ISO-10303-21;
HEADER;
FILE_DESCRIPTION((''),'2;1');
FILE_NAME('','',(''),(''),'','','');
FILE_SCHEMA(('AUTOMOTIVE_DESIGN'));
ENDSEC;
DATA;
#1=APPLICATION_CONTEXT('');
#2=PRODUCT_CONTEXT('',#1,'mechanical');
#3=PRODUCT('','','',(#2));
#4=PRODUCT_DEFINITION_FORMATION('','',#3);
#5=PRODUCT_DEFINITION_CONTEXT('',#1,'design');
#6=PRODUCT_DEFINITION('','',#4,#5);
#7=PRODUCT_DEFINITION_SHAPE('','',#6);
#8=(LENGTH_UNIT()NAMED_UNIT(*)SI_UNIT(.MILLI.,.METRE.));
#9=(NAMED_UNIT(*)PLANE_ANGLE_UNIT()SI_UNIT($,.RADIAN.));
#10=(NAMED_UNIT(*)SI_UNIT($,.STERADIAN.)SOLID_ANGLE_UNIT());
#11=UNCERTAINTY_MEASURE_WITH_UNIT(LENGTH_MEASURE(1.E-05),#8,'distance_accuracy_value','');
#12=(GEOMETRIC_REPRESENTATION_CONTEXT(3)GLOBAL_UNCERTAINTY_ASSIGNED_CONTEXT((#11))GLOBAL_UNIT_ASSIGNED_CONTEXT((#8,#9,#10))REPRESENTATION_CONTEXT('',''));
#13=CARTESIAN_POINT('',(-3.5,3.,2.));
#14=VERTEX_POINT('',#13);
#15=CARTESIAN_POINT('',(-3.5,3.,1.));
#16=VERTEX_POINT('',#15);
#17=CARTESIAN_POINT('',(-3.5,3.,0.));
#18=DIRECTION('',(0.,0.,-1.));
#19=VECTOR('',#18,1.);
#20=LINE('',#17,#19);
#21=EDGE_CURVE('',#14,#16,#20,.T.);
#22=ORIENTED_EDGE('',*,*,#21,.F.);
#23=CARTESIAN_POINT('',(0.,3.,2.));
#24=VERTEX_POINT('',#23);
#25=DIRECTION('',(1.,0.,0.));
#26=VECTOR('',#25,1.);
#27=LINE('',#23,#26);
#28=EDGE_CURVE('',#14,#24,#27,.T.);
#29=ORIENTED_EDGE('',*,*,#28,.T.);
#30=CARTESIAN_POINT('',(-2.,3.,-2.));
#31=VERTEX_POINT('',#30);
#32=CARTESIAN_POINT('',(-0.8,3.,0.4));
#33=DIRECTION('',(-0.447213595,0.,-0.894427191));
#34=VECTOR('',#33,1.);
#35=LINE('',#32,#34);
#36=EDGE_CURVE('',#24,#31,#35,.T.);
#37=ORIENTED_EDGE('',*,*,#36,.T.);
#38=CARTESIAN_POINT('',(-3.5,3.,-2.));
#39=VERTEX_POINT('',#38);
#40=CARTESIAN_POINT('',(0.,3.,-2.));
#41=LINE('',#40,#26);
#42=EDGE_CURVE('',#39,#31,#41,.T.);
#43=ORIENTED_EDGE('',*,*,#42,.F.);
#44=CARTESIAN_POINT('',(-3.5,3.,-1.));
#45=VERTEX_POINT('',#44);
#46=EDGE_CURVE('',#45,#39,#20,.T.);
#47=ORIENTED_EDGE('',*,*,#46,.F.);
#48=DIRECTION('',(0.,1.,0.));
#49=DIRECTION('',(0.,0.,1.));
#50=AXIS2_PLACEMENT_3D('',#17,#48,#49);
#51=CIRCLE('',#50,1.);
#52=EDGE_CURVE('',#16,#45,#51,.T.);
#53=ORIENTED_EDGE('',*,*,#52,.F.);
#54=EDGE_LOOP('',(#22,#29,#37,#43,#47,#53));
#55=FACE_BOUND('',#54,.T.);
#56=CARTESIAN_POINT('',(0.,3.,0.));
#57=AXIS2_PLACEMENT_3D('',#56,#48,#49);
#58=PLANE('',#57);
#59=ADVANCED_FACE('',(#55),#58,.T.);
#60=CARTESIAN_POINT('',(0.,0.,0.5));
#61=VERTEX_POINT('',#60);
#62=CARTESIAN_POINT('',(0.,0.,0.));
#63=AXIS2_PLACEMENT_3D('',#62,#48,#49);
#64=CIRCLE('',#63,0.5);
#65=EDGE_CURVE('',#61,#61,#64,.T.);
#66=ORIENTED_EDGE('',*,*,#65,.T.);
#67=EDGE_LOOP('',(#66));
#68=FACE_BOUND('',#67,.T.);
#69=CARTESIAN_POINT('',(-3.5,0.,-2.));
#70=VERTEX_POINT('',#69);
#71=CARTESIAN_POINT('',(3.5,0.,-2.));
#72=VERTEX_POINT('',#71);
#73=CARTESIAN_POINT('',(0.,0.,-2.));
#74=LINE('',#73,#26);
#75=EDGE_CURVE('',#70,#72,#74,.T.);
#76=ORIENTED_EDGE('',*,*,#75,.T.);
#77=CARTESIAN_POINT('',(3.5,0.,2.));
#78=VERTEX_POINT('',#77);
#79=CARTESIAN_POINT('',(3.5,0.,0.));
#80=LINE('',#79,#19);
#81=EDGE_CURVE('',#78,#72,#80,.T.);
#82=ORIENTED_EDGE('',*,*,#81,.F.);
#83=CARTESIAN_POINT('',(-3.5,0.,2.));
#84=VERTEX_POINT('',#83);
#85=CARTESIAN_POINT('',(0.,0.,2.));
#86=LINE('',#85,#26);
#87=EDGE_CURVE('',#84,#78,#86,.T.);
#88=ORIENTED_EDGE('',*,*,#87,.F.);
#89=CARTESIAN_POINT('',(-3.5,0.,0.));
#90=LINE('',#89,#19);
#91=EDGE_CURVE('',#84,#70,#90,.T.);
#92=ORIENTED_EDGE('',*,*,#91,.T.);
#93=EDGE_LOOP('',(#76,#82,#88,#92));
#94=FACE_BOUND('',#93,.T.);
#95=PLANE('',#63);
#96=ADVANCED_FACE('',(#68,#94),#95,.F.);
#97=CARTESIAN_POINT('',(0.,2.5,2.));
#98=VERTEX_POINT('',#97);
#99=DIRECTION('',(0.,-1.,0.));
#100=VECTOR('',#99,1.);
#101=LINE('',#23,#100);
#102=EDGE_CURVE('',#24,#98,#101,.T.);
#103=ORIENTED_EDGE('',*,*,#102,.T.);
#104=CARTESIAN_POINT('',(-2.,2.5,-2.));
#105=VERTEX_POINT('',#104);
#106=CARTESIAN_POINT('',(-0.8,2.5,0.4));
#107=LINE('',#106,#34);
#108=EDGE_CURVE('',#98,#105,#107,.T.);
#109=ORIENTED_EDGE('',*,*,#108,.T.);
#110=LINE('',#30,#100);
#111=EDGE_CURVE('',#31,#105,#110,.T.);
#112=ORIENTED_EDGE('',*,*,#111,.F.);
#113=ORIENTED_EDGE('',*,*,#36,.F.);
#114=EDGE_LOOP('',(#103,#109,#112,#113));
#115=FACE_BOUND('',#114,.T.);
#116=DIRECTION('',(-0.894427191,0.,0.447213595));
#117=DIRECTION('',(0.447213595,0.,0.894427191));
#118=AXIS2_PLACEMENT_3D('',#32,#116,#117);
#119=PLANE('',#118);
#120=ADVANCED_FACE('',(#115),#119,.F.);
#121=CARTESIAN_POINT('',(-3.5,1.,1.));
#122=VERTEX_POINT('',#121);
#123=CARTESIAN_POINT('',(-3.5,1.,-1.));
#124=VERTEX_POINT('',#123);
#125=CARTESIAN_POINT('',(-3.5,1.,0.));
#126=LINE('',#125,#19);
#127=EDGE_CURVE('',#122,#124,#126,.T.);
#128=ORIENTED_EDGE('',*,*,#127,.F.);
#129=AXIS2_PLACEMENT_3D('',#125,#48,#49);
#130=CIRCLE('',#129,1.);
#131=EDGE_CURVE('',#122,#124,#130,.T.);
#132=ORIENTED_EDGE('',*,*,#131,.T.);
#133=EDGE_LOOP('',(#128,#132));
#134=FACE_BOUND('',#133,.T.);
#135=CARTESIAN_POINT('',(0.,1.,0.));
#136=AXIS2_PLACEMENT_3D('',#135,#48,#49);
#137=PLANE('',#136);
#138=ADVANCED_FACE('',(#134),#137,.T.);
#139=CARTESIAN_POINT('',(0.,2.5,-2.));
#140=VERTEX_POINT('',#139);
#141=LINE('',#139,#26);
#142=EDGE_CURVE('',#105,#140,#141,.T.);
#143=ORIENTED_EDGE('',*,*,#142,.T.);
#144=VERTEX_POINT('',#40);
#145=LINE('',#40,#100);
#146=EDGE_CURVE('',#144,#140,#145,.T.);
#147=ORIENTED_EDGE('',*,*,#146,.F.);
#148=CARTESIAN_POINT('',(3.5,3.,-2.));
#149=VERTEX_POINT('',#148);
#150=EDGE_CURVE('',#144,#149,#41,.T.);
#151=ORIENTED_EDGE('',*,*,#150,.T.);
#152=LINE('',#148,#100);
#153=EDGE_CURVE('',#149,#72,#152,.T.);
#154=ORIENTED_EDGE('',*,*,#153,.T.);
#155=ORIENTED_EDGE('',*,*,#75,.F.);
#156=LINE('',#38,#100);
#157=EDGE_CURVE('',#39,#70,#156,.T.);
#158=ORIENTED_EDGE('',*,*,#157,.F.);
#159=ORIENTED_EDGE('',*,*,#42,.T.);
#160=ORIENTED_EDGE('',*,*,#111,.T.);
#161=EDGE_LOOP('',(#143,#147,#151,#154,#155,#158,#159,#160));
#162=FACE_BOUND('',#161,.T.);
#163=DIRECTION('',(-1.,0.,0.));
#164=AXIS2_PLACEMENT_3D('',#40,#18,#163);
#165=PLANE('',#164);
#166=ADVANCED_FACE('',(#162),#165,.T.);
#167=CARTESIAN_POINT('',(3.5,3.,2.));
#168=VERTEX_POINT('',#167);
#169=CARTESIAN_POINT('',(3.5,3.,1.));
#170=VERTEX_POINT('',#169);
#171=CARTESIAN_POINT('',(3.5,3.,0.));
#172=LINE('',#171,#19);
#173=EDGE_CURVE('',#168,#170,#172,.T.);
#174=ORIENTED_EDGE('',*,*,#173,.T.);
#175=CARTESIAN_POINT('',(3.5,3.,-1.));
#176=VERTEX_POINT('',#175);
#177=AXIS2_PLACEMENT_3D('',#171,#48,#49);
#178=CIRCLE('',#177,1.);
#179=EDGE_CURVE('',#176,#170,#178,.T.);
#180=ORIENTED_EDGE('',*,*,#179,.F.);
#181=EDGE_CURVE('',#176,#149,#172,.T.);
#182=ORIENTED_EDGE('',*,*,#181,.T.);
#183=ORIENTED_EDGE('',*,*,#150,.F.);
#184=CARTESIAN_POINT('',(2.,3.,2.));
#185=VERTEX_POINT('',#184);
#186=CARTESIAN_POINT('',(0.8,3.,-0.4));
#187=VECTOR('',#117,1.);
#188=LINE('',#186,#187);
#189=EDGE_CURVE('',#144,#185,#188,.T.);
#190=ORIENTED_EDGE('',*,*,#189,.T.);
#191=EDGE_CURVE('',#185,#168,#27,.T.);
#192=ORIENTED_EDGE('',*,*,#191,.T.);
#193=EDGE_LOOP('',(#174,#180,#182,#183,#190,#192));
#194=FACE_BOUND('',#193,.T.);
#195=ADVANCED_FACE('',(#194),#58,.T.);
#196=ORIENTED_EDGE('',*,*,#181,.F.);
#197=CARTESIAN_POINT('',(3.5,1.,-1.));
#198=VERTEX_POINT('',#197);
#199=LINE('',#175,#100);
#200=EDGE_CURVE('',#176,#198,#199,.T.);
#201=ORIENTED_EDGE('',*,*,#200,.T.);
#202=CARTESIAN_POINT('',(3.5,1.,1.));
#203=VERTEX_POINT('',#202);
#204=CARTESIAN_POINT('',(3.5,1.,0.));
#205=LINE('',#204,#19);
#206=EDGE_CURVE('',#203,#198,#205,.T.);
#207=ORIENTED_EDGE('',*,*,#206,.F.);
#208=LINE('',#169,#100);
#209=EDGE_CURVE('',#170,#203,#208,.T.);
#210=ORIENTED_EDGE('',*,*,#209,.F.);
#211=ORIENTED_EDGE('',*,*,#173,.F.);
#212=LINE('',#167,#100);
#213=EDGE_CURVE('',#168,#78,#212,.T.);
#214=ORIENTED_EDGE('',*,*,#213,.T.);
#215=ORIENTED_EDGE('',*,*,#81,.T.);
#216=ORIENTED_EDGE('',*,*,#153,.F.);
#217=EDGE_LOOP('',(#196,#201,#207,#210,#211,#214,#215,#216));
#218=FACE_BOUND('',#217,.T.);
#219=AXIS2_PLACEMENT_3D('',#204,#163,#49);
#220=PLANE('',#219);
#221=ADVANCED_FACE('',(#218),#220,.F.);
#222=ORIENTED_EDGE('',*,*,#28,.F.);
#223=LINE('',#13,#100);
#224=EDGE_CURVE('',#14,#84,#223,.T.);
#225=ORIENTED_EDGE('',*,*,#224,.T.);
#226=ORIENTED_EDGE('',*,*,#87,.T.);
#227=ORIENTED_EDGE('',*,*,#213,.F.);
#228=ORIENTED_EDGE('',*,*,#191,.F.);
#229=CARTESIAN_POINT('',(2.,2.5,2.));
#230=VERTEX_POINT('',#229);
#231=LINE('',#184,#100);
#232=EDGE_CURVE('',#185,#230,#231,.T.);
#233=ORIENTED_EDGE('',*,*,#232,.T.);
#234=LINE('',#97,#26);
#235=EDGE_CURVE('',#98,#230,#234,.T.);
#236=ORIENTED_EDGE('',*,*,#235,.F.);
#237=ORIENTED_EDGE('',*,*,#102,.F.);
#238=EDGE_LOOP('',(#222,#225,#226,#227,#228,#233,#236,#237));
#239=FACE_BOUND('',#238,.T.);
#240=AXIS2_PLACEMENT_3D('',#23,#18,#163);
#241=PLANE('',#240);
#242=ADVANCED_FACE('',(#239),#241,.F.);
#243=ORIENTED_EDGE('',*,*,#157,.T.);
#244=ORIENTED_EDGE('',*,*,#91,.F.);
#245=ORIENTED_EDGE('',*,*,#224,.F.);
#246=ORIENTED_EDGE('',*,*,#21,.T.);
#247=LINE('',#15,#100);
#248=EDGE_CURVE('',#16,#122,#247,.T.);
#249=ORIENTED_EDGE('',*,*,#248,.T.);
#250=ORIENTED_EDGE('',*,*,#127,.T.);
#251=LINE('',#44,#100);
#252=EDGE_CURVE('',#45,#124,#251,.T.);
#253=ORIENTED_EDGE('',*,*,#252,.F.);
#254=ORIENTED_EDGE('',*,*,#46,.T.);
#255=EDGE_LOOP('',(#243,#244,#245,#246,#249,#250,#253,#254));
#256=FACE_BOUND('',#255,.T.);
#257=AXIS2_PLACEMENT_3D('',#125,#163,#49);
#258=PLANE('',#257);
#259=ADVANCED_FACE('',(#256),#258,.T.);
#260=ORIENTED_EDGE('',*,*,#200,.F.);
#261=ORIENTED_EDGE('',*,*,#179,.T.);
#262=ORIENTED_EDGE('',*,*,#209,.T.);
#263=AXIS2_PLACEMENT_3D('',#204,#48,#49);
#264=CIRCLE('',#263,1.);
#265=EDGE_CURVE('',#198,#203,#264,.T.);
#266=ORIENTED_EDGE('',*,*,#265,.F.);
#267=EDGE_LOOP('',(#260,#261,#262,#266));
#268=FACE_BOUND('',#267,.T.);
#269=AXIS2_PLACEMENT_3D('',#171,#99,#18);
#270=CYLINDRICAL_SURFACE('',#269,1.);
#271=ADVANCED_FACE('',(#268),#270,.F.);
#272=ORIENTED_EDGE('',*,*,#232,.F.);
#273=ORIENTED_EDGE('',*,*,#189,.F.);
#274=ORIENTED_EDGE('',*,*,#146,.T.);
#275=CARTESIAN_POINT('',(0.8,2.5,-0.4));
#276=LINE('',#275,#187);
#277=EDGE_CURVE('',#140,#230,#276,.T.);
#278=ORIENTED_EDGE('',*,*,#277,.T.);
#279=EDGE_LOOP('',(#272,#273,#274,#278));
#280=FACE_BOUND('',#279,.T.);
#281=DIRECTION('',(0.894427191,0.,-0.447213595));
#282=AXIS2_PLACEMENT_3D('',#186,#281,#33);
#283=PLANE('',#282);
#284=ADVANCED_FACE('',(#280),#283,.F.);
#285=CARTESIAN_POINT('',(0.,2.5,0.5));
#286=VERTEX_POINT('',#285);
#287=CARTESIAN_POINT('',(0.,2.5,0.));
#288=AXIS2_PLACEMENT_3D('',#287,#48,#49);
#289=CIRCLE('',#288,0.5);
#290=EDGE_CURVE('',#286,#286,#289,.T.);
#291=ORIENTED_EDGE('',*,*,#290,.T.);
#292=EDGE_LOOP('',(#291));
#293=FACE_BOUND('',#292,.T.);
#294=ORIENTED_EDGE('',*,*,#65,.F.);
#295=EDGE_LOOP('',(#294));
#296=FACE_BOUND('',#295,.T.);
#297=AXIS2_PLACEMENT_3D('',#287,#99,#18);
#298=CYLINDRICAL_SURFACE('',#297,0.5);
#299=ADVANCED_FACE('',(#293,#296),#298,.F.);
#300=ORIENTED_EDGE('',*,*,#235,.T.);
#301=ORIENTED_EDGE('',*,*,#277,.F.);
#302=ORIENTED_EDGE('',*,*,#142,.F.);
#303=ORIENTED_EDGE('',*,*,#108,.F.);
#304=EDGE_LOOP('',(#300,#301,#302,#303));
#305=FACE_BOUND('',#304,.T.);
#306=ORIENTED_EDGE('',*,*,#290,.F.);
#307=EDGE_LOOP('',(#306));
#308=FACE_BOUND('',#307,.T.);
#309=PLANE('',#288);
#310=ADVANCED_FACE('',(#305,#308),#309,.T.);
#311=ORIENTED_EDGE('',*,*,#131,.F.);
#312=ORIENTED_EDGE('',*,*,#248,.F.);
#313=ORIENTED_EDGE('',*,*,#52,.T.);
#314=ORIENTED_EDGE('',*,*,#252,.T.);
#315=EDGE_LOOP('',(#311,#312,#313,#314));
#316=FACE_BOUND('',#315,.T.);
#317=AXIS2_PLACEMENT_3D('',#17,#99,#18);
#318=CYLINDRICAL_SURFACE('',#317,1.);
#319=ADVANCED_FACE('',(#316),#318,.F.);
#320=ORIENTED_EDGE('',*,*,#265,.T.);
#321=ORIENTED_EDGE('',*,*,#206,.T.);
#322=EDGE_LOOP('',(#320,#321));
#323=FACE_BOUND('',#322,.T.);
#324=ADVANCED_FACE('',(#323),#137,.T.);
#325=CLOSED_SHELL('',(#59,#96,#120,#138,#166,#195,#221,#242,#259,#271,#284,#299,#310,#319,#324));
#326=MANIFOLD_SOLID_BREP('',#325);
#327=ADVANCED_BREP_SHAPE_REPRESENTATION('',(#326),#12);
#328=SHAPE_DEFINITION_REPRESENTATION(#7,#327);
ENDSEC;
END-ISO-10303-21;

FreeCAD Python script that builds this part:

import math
import FreeCAD as App
import Part
import Sketcher

V = App.Vector
Q = App.Units.Quantity

doc = App.newDocument("Part")
body = doc.addObject("PartDesign::Body", "Body")

sketch1 = doc.addObject("Sketcher::SketchObject", "Sketch")
body.addObject(sketch1)
sketch1.AttachmentSupport = (doc.XZ_Plane, [""])
sketch1.MapMode = "FlatFace"
sketch1.addGeometry([
    Part.ArcOfCircle(Part.Circle(V(3.5, 0, 0), V(0, 0, 1), 1), math.radians(90), math.radians(270)),
    Part.LineSegment(V(3.5, 1, 0), V(3.5, -1, 0)),
], False)
sketch1.addConstraint([
    Sketcher.Constraint("Coincident", 0, 1, 1, 1),
    Sketcher.Constraint("Coincident", 1, 2, 0, 2),
    Sketcher.Constraint("Vertical", 1),
    Sketcher.Constraint("PointOnObject", 0, 3, -1),
    Sketcher.Constraint("Radius", 0, Q("1 mm")),
    Sketcher.Constraint("DistanceX", -1, 1, 0, 3, Q("3.5 mm")),
    Sketcher.Constraint("DistanceX", -1, 1, 0, 1, Q("3.5 mm")),
])
pad1 = doc.addObject("PartDesign::Pad", "Pad")
body.addObject(pad1)
pad1.Profile = sketch1
pad1.Length = 1
pad1.Reversed = True
body2 = doc.addObject("PartDesign::Body", "Body001")

sketch2 = doc.addObject("Sketcher::SketchObject", "Sketch001")
body2.addObject(sketch2)
sketch2.AttachmentSupport = (doc.getObject("XZ_Plane001"), [""])
sketch2.MapMode = "FlatFace"
sketch2.addGeometry([
    Part.LineSegment(V(-3.5, -1, 0), V(-3.5, 1, 0)),
    Part.ArcOfCircle(Part.Circle(V(-3.5, 0, 0), V(0, 0, 1), 1), math.radians(0), math.radians(90)),
    Part.ArcOfCircle(Part.Circle(V(-3.5, 0, 0), V(0, 0, 1), 1), math.radians(-90), math.radians(0)),
], False)
sketch2.addConstraint([
    Sketcher.Constraint("Coincident", 0, 2, 1, 2),
    Sketcher.Constraint("Tangent", 1, 1, 2, 2),
    Sketcher.Constraint("Coincident", 2, 1, 0, 1),
    Sketcher.Constraint("Vertical", 0),
    Sketcher.Constraint("Equal", 1, 2),
    Sketcher.Constraint("PointOnObject", 1, 3, -1),
    Sketcher.Constraint("PointOnObject", 1, 1, -1),
    Sketcher.Constraint("Vertical", 2, 3, 0, 2),
    Sketcher.Constraint("Radius", 1, Q("1 mm")),
    Sketcher.Constraint("DistanceX", 1, 3, -1, 1, Q("3.5 mm")),
])
pad2 = doc.addObject("PartDesign::Pad", "Pad001")
body2.addObject(pad2)
pad2.Profile = sketch2
pad2.Length = 1
pad2.Reversed = True
body.AllowCompound = True
doc.recompute()

boolean = doc.addObject("PartDesign::Boolean", "Boolean")
body.addObject(boolean)
boolean.Type = "Fuse"
boolean.addObjects([body2])

sketch3 = doc.addObject("Sketcher::SketchObject", "Sketch002")
body.addObject(sketch3)
sketch3.AttachmentSupport = (doc.XZ_Plane, [""])
sketch3.MapMode = "FlatFace"
sketch3.addGeometry([
    Part.LineSegment(V(-3.5, 2, 0), V(0, 2, 0)),
    Part.LineSegment(V(0, 2, 0), V(-2, -2, 0)),
    Part.LineSegment(V(-2, -2, 0), V(-3.5, -2, 0)),
    Part.LineSegment(V(-3.5, -2, 0), V(-3.5, -1, 0)),
    Part.ArcOfCircle(Part.Circle(V(-3.5, 0, 0), V(0, 0, 1), 1), math.radians(-90), math.radians(0)),
    Part.ArcOfCircle(Part.Circle(V(-3.5, 0, 0), V(0, 0, 1), 1), math.radians(0), math.radians(90)),
    Part.LineSegment(V(-3.5, 1, 0), V(-3.5, 2, 0)),
    Part.LineSegment(V(0, -2, 0), V(2, 2, 0)),
    Part.LineSegment(V(2, 2, 0), V(3.5, 2, 0)),
    Part.LineSegment(V(3.5, 2, 0), V(3.5, 1, 0)),
    Part.ArcOfCircle(Part.Circle(V(3.5, 0, 0), V(0, 0, 1), 1), math.radians(90), math.radians(270)),
    Part.LineSegment(V(3.5, -1, 0), V(3.5, -2, 0)),
    Part.LineSegment(V(3.5, -2, 0), V(0, -2, 0)),
], False)
sketch3.addConstraint([
    Sketcher.Constraint("Coincident", 0, 2, 1, 1),
    Sketcher.Constraint("Coincident", 1, 2, 2, 1),
    Sketcher.Constraint("Coincident", 2, 2, 3, 1),
    Sketcher.Constraint("Coincident", 3, 2, 4, 1),
    Sketcher.Constraint("Tangent", 4, 2, 5, 1),
    Sketcher.Constraint("Coincident", 5, 2, 6, 1),
    Sketcher.Constraint("Coincident", 6, 2, 0, 1),
    Sketcher.Constraint("Coincident", 7, 2, 8, 1),
    Sketcher.Constraint("Coincident", 8, 2, 9, 1),
    Sketcher.Constraint("Coincident", 9, 2, 10, 1),
    Sketcher.Constraint("Coincident", 10, 2, 11, 1),
    Sketcher.Constraint("Coincident", 11, 2, 12, 1),
    Sketcher.Constraint("Coincident", 12, 2, 7, 1),
    Sketcher.Constraint("Horizontal", 0),
    Sketcher.Constraint("Horizontal", 2),
    Sketcher.Constraint("Vertical", 3),
    Sketcher.Constraint("Vertical", 6),
    Sketcher.Constraint("Horizontal", 8),
    Sketcher.Constraint("Vertical", 9),
    Sketcher.Constraint("Vertical", 11),
    Sketcher.Constraint("Horizontal", 12),
    Sketcher.Constraint("Equal", 4, 5),
    Sketcher.Constraint("Equal", 5, 10),
    Sketcher.Constraint("Symmetric", 4, 3, 10, 3, -1, 1),
    Sketcher.Constraint("Symmetric", 1, 2, 7, 2, -1, 1),
    Sketcher.Constraint("Symmetric", 6, 2, 11, 2, -1, 1),
    Sketcher.Constraint("Symmetric", 6, 2, 8, 2, -2),
    Sketcher.Constraint("Symmetric", 3, 2, 10, 2, -2),
    Sketcher.Constraint("PointOnObject", 0, 2, -2),
    Sketcher.Constraint("PointOnObject", 4, 2, -1),
    Sketcher.Constraint("PointOnObject", 12, 2, -2),
    Sketcher.Constraint("Vertical", 5, 3, 2, 2),
    Sketcher.Constraint("Radius", 4, Q("1 mm")),
    Sketcher.Constraint("DistanceY", 3, 1, 3, 2, Q("1 mm")),
    Sketcher.Constraint("DistanceX", 0, 1, 0, 2, Q("3.5 mm")),
    Sketcher.Constraint("DistanceX", 2, 2, 2, 1, Q("1.5 mm")),
])
pad3 = doc.addObject("PartDesign::Pad", "Pad002")
body.addObject(pad3)
pad3.Profile = sketch3
pad3.Length = 3
pad3.Reversed = True

sketch4 = doc.addObject("Sketcher::SketchObject", "Sketch003")
body.addObject(sketch4)
sketch4.AttachmentSupport = (doc.XZ_Plane, [""])
sketch4.MapMode = "FlatFace"
sketch4.addGeometry([
    Part.LineSegment(V(-2, -2, 0), V(0, 2, 0)),
    Part.LineSegment(V(0, 2, 0), V(2, 2, 0)),
    Part.LineSegment(V(2, 2, 0), V(0, -2, 0)),
    Part.LineSegment(V(0, -2, 0), V(-2, -2, 0)),
    Part.Circle(V(0, 0, 0), V(0, 0, 1), 0.5),
], False)
sketch4.addConstraint([
    Sketcher.Constraint("Coincident", 0, 2, 1, 1),
    Sketcher.Constraint("Coincident", 1, 2, 2, 1),
    Sketcher.Constraint("Coincident", 2, 2, 3, 1),
    Sketcher.Constraint("Coincident", 3, 2, 0, 1),
    Sketcher.Constraint("Horizontal", 1),
    Sketcher.Constraint("Horizontal", 3),
    Sketcher.Constraint("Coincident", 4, 3, -1, 1),
    Sketcher.Constraint("Symmetric", 0, 2, 2, 2, -1, 1),
    Sketcher.Constraint("PointOnObject", 0, 2, -2),
    Sketcher.Constraint("Parallel", 0, 2),
    Sketcher.Constraint("Diameter", 4, Q("1 mm")),
    Sketcher.Constraint("DistanceX", 1, 1, 1, 2, Q("2 mm")),
    Sketcher.Constraint("DistanceY", -1, 1, 0, 2, Q("2 mm")),
])
pad4 = doc.addObject("PartDesign::Pad", "Pad003")
body.addObject(pad4)
pad4.Profile = sketch4
pad4.Length = 2.5
pad4.Reversed = True

doc.recompute()
